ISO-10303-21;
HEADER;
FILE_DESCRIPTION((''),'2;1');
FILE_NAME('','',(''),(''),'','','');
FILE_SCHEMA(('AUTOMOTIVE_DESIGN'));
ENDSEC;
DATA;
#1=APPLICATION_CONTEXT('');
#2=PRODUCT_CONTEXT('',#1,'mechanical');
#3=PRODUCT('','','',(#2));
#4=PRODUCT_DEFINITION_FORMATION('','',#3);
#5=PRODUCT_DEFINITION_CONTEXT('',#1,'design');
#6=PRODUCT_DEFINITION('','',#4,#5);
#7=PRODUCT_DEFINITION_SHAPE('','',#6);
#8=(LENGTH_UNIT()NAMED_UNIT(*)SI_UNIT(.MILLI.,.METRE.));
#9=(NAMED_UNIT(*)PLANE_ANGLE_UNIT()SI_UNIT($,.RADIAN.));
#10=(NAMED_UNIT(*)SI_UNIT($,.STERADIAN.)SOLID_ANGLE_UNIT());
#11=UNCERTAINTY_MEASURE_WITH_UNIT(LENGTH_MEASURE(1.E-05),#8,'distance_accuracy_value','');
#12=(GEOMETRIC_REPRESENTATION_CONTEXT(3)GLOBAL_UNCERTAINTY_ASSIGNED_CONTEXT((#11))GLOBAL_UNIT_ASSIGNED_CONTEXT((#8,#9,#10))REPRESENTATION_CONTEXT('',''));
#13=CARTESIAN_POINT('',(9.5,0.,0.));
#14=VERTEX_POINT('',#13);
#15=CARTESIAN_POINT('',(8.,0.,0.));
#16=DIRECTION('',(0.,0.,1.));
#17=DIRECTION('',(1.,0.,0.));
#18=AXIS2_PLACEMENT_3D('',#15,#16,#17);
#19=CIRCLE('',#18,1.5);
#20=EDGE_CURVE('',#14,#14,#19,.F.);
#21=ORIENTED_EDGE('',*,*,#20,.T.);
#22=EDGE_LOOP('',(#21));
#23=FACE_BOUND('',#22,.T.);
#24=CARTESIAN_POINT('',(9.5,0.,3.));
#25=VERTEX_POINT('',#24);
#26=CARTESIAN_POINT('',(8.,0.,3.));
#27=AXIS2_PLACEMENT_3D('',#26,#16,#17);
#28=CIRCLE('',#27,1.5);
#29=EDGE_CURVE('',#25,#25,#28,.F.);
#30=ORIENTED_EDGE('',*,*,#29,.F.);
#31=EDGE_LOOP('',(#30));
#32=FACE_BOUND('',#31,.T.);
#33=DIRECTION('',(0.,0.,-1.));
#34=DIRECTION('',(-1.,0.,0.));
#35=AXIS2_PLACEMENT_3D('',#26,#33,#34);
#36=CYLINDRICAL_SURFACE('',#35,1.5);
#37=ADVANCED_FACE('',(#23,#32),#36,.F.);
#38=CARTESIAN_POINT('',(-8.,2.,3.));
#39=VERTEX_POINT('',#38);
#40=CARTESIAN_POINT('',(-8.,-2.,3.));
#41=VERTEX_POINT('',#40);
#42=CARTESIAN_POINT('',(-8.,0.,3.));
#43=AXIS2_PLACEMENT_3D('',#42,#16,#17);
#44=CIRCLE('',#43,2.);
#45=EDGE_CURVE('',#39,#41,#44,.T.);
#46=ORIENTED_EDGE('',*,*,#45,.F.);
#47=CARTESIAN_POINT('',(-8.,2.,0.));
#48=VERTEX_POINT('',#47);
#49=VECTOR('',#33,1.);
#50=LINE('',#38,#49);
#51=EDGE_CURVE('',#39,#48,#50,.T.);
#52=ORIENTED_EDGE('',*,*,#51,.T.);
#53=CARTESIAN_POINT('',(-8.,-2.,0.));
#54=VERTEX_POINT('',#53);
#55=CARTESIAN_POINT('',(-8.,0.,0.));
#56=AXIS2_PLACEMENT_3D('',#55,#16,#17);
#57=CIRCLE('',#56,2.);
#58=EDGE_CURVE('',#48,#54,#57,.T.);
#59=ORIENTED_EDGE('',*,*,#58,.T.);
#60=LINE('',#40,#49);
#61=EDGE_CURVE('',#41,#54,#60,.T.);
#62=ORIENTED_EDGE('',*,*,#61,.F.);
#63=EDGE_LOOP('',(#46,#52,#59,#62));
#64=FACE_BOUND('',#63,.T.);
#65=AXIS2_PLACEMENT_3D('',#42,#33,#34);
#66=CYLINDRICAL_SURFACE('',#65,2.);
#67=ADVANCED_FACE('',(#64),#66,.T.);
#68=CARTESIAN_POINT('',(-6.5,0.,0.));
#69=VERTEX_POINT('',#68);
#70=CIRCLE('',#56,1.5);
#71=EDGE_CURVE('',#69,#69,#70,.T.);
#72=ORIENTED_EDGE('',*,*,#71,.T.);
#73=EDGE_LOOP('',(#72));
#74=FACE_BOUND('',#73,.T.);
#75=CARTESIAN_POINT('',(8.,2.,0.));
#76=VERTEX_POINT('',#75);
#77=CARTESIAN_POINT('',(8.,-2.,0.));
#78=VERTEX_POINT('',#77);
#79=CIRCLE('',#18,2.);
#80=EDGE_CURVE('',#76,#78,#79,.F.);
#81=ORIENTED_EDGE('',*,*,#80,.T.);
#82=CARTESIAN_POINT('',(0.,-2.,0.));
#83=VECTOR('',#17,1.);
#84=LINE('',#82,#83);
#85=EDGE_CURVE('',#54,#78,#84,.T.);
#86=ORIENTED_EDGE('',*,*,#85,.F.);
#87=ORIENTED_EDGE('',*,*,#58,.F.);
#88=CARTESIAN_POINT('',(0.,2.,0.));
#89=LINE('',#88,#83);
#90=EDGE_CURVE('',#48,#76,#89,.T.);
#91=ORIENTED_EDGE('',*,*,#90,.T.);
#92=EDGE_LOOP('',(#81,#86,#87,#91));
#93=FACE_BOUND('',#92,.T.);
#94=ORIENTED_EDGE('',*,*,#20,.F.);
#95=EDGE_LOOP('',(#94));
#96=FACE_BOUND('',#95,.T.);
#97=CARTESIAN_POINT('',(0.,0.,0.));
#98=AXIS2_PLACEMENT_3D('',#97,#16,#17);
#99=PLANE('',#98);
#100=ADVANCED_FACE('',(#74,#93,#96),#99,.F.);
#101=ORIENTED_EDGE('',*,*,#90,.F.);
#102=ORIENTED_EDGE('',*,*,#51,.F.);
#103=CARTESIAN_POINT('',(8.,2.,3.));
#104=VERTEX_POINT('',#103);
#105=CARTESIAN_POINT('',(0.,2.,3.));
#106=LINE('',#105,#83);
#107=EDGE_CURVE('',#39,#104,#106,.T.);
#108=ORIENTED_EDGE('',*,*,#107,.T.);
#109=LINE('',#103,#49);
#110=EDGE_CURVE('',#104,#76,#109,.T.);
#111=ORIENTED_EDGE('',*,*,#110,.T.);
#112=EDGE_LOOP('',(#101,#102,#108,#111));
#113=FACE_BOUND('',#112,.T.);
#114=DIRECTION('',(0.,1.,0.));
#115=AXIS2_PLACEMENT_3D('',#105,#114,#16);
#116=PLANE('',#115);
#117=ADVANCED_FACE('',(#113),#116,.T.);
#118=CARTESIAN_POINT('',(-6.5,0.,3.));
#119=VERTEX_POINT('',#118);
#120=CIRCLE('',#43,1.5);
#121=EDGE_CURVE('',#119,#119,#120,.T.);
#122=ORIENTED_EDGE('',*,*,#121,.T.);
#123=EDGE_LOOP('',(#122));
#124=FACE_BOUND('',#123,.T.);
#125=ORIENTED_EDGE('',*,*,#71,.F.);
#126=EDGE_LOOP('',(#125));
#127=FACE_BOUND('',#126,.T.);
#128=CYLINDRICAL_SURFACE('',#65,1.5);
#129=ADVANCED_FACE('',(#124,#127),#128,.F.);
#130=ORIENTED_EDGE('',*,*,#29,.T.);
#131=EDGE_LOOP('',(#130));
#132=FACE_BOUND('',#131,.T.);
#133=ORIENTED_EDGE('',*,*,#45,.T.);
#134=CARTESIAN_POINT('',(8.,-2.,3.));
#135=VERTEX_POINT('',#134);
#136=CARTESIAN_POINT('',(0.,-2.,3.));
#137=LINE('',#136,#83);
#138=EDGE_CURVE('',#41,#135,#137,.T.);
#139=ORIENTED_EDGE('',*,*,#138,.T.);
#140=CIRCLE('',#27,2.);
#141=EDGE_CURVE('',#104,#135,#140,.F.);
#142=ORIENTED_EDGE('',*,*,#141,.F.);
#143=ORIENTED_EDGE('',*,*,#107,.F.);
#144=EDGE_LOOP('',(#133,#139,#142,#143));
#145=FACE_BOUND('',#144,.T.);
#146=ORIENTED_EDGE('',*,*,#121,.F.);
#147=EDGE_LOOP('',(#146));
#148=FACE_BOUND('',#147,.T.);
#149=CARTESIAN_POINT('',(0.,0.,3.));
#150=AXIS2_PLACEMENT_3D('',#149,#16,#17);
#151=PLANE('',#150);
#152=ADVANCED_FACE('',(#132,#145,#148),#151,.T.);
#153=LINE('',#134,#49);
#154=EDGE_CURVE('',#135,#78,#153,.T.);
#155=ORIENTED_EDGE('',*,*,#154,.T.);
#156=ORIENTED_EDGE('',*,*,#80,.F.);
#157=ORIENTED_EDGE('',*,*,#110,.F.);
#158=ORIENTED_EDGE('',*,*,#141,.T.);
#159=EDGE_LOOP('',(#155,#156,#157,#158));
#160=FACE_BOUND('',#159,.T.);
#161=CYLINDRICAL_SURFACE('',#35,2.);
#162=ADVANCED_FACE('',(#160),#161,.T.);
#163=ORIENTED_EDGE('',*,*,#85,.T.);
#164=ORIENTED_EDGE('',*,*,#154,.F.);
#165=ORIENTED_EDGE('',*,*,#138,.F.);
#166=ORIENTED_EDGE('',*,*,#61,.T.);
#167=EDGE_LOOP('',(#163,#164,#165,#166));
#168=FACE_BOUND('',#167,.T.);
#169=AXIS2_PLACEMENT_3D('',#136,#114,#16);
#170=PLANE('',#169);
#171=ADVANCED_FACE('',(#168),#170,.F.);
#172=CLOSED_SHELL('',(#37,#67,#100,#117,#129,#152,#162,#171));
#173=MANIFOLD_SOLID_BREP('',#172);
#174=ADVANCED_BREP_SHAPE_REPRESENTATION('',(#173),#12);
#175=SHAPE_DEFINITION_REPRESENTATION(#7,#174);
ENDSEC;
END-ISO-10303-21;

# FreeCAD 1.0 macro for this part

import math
import FreeCAD as App
import Part
import Sketcher

doc = App.newDocument("Part")
body = doc.addObject("PartDesign::Body", "Body")

# Sketch on XY plane
sketch1 = doc.addObject("Sketcher::SketchObject", "Sketch")
body.addObject(sketch1)
sketch1.AttachmentSupport = (doc.XY_Plane, [""])
sketch1.MapMode = "FlatFace"
sketch1.addGeometry([
    Part.LineSegment(App.Vector(-8, -2, 0), App.Vector(8, -2, 0)),  # 0
    Part.ArcOfCircle(Part.Circle(App.Vector(8, 0, 0), App.Vector(0, 0, 1), 2), math.radians(-90), math.radians(90)),  # 1
    Part.LineSegment(App.Vector(8, 2, 0), App.Vector(-8, 2, 0)),  # 2
    Part.ArcOfCircle(Part.Circle(App.Vector(-8, 0, 0), App.Vector(0, 0, 1), 2), math.radians(90), math.radians(270)),  # 3
    Part.Circle(App.Vector(-8, 0, 0), App.Vector(0, 0, 1), 1.5),  # 4
    Part.Circle(App.Vector(8, 0, 0), App.Vector(0, 0, 1), 1.5),  # 5
], False)
sketch1.addConstraint([
    Sketcher.Constraint("Tangent", 0, 2, 1, 1),
    Sketcher.Constraint("Tangent", 1, 2, 2, 1),
    Sketcher.Constraint("Tangent", 2, 2, 3, 1),
    Sketcher.Constraint("Tangent", 3, 2, 0, 1),
    Sketcher.Constraint("Horizontal", 0),
    Sketcher.Constraint("Horizontal", 2),
    Sketcher.Constraint("Coincident", 4, 3, 3, 3),
    Sketcher.Constraint("Coincident", 5, 3, 1, 3),
    Sketcher.Constraint("Equal", 4, 5),
    Sketcher.Constraint("Symmetric", 1, 3, 3, 3, -1, 1),
    Sketcher.Constraint("Diameter", 4, 3.0),
    Sketcher.Constraint("Radius", 1, 2.0),
    Sketcher.Constraint("DistanceX", 0, 1, 0, 2, 16.0),
])
pad1 = doc.addObject("PartDesign::Pad", "Pad")
body.addObject(pad1)
pad1.Profile = sketch1
pad1.Length = 3

doc.recompute()
